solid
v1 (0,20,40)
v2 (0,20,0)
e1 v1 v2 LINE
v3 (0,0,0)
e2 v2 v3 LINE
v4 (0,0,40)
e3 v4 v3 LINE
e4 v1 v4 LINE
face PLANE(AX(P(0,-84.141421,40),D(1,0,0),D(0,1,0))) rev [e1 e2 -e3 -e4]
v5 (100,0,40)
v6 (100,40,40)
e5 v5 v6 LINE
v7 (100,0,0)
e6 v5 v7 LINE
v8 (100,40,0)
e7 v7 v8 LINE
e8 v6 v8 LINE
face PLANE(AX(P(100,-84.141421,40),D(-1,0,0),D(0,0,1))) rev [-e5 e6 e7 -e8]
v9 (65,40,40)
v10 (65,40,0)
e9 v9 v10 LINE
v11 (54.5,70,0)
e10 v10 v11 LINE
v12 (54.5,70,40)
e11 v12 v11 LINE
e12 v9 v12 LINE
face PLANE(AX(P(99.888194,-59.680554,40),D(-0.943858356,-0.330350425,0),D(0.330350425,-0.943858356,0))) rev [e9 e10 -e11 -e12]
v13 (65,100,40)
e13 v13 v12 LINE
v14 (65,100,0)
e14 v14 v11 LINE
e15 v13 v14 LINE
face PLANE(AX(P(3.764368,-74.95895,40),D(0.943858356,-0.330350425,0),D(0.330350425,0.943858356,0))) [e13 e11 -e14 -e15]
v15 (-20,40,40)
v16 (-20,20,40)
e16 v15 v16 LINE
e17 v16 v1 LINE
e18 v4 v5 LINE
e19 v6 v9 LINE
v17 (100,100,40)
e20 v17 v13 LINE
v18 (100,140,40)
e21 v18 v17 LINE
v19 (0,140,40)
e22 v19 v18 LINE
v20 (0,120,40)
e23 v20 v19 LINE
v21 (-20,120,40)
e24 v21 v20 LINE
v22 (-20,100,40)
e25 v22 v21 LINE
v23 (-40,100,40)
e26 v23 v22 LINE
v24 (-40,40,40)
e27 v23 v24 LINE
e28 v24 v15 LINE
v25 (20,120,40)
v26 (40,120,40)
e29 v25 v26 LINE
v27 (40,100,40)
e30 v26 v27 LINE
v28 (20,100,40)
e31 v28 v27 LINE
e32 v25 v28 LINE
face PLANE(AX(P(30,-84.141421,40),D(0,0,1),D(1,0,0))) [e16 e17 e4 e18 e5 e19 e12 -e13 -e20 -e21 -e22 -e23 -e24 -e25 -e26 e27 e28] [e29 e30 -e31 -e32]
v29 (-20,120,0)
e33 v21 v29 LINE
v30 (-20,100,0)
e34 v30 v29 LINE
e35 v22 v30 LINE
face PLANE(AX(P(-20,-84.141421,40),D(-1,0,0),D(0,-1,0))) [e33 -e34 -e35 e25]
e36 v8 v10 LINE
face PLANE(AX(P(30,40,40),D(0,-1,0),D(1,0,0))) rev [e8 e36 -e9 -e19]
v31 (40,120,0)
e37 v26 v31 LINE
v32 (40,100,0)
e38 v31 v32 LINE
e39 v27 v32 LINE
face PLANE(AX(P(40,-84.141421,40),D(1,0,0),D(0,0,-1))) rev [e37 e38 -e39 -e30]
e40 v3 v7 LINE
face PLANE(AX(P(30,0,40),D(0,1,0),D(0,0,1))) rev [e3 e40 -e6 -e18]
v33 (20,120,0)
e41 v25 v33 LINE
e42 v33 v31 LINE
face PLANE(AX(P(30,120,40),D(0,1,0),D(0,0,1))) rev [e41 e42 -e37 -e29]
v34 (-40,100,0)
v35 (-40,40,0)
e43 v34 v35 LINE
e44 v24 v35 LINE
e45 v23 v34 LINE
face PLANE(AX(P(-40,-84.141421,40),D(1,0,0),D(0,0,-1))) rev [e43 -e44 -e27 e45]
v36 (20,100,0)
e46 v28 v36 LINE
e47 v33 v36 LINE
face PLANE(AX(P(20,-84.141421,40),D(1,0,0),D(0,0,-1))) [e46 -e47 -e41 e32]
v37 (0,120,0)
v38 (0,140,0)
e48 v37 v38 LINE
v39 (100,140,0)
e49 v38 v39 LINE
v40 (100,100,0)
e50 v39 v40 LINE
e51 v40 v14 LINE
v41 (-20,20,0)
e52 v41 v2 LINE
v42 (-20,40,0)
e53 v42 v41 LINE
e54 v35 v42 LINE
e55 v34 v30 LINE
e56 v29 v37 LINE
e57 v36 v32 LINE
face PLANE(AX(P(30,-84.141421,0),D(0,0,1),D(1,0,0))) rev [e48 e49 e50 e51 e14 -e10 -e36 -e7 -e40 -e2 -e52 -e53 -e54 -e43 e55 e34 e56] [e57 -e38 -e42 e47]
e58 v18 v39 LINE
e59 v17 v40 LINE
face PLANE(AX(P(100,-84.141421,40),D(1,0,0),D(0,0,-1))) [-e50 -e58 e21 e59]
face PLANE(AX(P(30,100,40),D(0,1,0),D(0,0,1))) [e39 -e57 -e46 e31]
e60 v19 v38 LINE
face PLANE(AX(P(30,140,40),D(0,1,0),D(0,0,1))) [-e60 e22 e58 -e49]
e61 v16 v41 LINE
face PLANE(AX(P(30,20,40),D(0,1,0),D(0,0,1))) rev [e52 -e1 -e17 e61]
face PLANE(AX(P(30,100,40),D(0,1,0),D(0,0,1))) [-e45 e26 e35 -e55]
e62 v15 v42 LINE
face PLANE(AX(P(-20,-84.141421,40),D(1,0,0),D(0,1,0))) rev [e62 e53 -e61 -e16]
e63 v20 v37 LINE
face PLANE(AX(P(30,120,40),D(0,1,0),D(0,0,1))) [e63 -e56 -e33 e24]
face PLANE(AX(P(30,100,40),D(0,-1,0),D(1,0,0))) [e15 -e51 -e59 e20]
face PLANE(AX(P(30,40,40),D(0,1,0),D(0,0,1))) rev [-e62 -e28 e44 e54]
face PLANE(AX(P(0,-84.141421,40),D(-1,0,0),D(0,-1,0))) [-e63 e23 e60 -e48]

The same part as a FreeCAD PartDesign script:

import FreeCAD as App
import Part
import Sketcher


def add_polygon(sketch, points):
    """Adds a closed chain of lines whose ends are joined by coincident constraints."""
    first, n = sketch.GeometryCount, len(points)
    for a, b in zip(points, points[1:] + points[:1]):
        sketch.addGeometry(Part.LineSegment(App.Vector(*a, 0), App.Vector(*b, 0)), False)
    for i in range(n):
        sketch.addConstraint(Sketcher.Constraint("Coincident", first + i, 2, first + (i + 1) % n, 1))

doc = App.newDocument("Part")
body = doc.addObject("PartDesign::Body", "Body")

# Sketch on XY plane
sketch1 = body.newObject("Sketcher::SketchObject", "Sketch")
sketch1.AttachmentSupport = (doc.getObject("XY_Plane"), [""])
sketch1.MapMode = "FlatFace"
add_polygon(sketch1, [(100, 140), (0, 140), (0, 120), (-20, 120), (-20, 100), (-40, 100), (-40, 40), (-20, 40), (-20, 20), (0, 20), (0, 0), (100, 0), (100, 40), (65, 40), (54.5, 70), (65, 100), (100, 100)])  # lines 0-16
add_polygon(sketch1, [(20, 100), (20, 120), (40, 120), (40, 100)])  # lines 17-20
sketch1.addConstraint([
    Sketcher.Constraint("Horizontal", 0),
    Sketcher.Constraint("Vertical", 1),
    Sketcher.Constraint("Horizontal", 2),
    Sketcher.Constraint("Vertical", 3),
    Sketcher.Constraint("Horizontal", 4),
    Sketcher.Constraint("Vertical", 5),
    Sketcher.Constraint("Horizontal", 6),
    Sketcher.Constraint("Vertical", 7),
    Sketcher.Constraint("Horizontal", 8),
    Sketcher.Constraint("Vertical", 9),
    Sketcher.Constraint("Horizontal", 10),
    Sketcher.Constraint("Vertical", 11),
    Sketcher.Constraint("Horizontal", 12),
    Sketcher.Constraint("Horizontal", 15),
    Sketcher.Constraint("Vertical", 16),
    Sketcher.Constraint("Vertical", 17),
    Sketcher.Constraint("Horizontal", 18),
    Sketcher.Constraint("Vertical", 19),
    Sketcher.Constraint("Horizontal", 20),
    Sketcher.Constraint("Coincident", 9, 2, -1, 1),
    Sketcher.Constraint("Symmetric", 2, 2, 17, 2, -2),
    Sketcher.Constraint("Symmetric", 4, 2, 19, 2, -2),
    Sketcher.Constraint("PointOnObject", 0, 2, -2),
    Sketcher.Constraint("Horizontal", 6, 2, 11, 2),
    Sketcher.Constraint("Horizontal", 4, 2, 14, 2),
    Sketcher.Constraint("Vertical", 3, 2, 6, 2),
    Sketcher.Constraint("Vertical", 12, 2, 14, 2),
    Sketcher.Constraint("Vertical", 11, 2, 15, 2),
    Sketcher.Constraint("Equal", 2, 4),
    Sketcher.Constraint("Equal", 20, 1),
    Sketcher.Constraint("Equal", 1, 3),
    Sketcher.Constraint("Equal", 3, 7),
    Sketcher.Constraint("Equal", 7, 9),
    Sketcher.Constraint("Equal", 13, 14),
    Sketcher.Constraint("DistanceX", 0, 2, 0, 1, 100.0),
    Sketcher.Constraint("DistanceX", 2, 2, 2, 1, 20.0),
    Sketcher.Constraint("DistanceX", 12, 2, 12, 1, 35.0),
    Sketcher.Constraint("DistanceY", 5, 2, 5, 1, 60.0),
    Sketcher.Constraint("DistanceX", -1, 1, 13, 2, 54.5),
])
pad1 = body.newObject("PartDesign::Pad", "Pad")
pad1.Profile = sketch1
pad1.Length = 40

doc.recompute()
